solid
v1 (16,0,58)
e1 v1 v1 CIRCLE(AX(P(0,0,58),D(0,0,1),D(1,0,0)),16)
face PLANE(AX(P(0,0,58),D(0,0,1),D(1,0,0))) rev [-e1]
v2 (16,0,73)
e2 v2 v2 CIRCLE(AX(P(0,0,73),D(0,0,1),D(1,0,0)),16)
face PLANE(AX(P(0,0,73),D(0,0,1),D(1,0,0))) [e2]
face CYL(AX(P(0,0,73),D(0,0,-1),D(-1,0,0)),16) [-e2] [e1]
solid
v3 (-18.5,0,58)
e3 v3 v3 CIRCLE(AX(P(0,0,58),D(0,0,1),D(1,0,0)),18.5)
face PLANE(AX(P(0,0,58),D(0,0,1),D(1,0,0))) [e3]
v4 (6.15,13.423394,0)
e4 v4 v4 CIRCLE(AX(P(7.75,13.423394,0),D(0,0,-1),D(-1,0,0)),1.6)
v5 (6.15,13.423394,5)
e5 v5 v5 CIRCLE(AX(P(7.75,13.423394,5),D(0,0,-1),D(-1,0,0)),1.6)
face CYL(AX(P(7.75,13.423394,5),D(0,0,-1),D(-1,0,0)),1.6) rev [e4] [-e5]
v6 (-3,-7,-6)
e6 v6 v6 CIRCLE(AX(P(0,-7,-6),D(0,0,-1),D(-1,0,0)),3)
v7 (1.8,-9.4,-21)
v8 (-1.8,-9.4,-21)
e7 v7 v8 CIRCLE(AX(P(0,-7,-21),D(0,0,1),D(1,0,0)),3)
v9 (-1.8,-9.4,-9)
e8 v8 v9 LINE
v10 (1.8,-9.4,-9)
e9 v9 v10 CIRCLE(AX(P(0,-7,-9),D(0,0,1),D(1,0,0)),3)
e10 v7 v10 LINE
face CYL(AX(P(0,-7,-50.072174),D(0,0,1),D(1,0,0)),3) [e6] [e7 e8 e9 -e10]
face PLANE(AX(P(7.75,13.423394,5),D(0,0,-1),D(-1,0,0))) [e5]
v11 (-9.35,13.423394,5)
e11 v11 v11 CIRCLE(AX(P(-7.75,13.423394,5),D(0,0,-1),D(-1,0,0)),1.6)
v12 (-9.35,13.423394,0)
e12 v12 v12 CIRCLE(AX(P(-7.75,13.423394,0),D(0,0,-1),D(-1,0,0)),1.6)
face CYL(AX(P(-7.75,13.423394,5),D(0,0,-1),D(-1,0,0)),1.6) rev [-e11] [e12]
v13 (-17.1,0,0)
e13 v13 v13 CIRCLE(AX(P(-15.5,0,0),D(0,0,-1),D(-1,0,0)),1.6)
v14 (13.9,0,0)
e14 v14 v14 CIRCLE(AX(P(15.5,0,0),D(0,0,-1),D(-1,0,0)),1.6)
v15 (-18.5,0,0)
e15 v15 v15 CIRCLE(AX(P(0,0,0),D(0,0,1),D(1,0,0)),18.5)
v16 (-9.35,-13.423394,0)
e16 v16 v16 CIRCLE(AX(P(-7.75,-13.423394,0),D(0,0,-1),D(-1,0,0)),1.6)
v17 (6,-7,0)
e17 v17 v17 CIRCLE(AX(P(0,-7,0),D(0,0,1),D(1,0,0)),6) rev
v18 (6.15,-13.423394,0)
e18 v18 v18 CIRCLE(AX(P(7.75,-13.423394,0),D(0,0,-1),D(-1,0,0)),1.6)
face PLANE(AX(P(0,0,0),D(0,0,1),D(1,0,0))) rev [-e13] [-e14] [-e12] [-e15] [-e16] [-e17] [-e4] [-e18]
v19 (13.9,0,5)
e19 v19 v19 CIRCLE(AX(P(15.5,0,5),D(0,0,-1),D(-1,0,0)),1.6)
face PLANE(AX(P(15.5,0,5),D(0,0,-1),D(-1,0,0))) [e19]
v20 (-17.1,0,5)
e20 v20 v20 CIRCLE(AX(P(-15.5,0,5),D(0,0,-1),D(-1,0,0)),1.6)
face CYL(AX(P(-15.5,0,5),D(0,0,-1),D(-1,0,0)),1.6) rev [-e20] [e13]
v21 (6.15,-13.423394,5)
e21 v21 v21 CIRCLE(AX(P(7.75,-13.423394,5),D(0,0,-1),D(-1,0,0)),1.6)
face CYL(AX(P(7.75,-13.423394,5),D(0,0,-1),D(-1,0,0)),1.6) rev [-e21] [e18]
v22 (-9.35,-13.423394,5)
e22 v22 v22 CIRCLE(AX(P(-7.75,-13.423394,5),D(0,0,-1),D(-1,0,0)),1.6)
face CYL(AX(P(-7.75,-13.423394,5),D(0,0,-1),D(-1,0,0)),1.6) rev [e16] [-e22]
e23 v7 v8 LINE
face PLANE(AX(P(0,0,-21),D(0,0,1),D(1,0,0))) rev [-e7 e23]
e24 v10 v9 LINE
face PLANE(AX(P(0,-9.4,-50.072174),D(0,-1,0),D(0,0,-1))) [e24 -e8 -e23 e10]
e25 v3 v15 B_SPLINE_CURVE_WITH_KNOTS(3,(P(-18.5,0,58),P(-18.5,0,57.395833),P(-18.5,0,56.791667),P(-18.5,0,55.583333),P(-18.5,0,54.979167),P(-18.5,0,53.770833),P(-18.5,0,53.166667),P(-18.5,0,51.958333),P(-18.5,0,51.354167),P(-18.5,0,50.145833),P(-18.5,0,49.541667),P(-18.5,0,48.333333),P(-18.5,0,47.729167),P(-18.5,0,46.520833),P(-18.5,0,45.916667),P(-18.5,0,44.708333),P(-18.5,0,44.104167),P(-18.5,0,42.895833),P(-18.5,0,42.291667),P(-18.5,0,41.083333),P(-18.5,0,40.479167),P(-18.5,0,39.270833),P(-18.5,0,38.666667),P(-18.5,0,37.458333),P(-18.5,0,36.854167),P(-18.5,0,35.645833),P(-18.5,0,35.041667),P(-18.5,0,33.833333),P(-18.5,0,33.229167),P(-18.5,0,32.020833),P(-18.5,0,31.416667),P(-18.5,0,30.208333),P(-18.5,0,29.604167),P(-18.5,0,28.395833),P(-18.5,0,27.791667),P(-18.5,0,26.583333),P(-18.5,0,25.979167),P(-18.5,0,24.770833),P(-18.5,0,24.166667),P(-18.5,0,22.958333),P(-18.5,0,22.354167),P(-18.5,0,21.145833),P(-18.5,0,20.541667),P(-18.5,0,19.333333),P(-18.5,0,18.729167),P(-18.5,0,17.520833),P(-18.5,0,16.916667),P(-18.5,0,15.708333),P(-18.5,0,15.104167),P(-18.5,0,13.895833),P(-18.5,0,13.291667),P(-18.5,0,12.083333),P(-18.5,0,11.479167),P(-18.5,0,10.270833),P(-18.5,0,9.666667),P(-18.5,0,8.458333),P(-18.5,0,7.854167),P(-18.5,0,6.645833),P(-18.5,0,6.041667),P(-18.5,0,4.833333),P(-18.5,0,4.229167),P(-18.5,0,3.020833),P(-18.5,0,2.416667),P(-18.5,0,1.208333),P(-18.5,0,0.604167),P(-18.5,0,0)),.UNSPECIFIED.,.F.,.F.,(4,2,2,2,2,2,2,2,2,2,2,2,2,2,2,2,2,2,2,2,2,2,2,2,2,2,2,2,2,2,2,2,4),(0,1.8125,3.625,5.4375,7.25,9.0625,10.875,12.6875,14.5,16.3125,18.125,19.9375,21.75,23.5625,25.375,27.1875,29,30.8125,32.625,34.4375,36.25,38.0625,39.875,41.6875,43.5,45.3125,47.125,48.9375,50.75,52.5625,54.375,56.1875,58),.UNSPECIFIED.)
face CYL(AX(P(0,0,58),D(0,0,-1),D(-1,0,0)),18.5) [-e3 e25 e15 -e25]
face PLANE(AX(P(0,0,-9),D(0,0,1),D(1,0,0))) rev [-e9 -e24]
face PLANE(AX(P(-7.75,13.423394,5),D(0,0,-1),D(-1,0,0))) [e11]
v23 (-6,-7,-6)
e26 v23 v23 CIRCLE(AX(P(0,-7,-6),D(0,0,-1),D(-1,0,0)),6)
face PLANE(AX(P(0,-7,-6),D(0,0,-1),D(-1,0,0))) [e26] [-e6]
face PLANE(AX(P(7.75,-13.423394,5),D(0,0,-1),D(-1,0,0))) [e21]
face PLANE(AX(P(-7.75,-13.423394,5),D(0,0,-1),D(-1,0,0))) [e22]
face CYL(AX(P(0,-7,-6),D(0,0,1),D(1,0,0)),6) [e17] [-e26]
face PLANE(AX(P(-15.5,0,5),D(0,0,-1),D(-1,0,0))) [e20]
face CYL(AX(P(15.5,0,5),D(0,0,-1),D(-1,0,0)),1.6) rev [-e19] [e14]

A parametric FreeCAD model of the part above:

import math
import FreeCAD as App
import Part
import Sketcher
from FreeCAD import Vector

doc = App.newDocument("Part")
params = doc.addObject("Spreadsheet::Sheet", "Params")
for row, (alias, value) in enumerate([
    ("sketch1_diameter", "37 mm"),
    ("pad1_length", "58 mm"),
    ("sketch2_diameter", "12 mm"),
    ("pad2_length", "6 mm"),
    ("sketch3_radius", "3 mm"),
    ("sketch3_width", "3.6 mm"),
    ("pad3_length", "15 mm"),
    ("sketch4_diameter", "6 mm"),
    ("pad4_length", "3 mm"),
    ("sketch5_diameter", "3.2 mm"),
    ("pocket1_length", "5 mm"),
    ("sketch6_diameter", "32 mm"),
    ("pad5_length", "15 mm"),
], start=1):
    params.set(f"A{row}", alias)
    params.set(f"B{row}", "=" + value)
    params.setAlias(f"B{row}", alias)

body = doc.addObject("PartDesign::Body", "Body")

# Sketch on XY plane
sketch1 = body.newObject("Sketcher::SketchObject", "Sketch")
sketch1.AttachmentSupport = (doc.getObject("XY_Plane"), [""])
sketch1.MapMode = "FlatFace"
sketch1.addGeometry(Part.Circle(Vector(0, 0, 0), Vector(0, 0, 1), 18.5), False)
sketch1.addConstraint([
    Sketcher.Constraint("Coincident", 0, 3, -1, 1),
    Sketcher.Constraint("Diameter", 0, 37.0),
])
sketch1.setExpression("Constraints[1]", "Params.sketch1_diameter")
pad1 = body.newObject("PartDesign::Pad", "Pad")
pad1.Profile = sketch1
pad1.setExpression("Length", "Params.pad1_length")

# Sketch on XY plane
sketch2 = body.newObject("Sketcher::SketchObject", "Sketch001")
sketch2.AttachmentSupport = (doc.getObject("XY_Plane"), [""])
sketch2.MapMode = "FlatFace"
sketch2.addGeometry(Part.Circle(Vector(0, -7, 0), Vector(0, 0, 1), 6), False)
sketch2.addConstraint([
    Sketcher.Constraint("PointOnObject", 0, 3, -2),
    Sketcher.Constraint("Diameter", 0, 12.0),
    Sketcher.Constraint("DistanceY", 0, 3, -1, 1, 7.0),
])
sketch2.setExpression("Constraints[1]", "Params.sketch2_diameter")
pad2 = body.newObject("PartDesign::Pad", "Pad001")
pad2.Profile = sketch2
pad2.setExpression("Length", "Params.pad2_length")
pad2.Reversed = True

# Sketch on XY plane
sketch3 = body.newObject("Sketcher::SketchObject", "Sketch002")
sketch3.AttachmentSupport = (doc.getObject("XY_Plane"), [""])
sketch3.MapMode = "FlatFace"
sketch3.AttachmentOffset = App.Placement(Vector(0, 0, -6), App.Rotation())
sketch3.addGeometry([
    Part.LineSegment(Vector(1.8, -9.4, 0), Vector(-1.8, -9.4, 0)),
    Part.ArcOfCircle(Part.Circle(Vector(0, -7, 0), Vector(0, 0, 1), 3), math.radians(-180), math.radians(-126.869898)),
    Part.ArcOfCircle(Part.Circle(Vector(0, -7, 0), Vector(0, 0, 1), 3), math.radians(-53.130102), math.radians(180)),
], False)
sketch3.addConstraint([
    Sketcher.Constraint("Coincident", 0, 2, 1, 2),
    Sketcher.Constraint("Tangent", 1, 1, 2, 2),
    Sketcher.Constraint("Coincident", 2, 1, 0, 1),
    Sketcher.Constraint("Horizontal", 0),
    Sketcher.Constraint("Equal", 1, 2),
    Sketcher.Constraint("PointOnObject", 1, 3, -2),
    Sketcher.Constraint("Horizontal", 2, 3, 1, 1),
    Sketcher.Constraint("Radius", 1, 3.0),
    Sketcher.Constraint("DistanceX", 0, 2, 0, 1, 3.6),
    Sketcher.Constraint("DistanceY", 1, 3, -1, 1, 7.0),
])
sketch3.setExpression("Constraints[7]", "Params.sketch3_radius")
sketch3.setExpression("Constraints[8]", "Params.sketch3_width")
pad3 = body.newObject("PartDesign::Pad", "Pad002")
pad3.Profile = sketch3
pad3.setExpression("Length", "Params.pad3_length")
pad3.Reversed = True

# Sketch on XY plane
sketch4 = body.newObject("Sketcher::SketchObject", "Sketch003")
sketch4.AttachmentSupport = (doc.getObject("XY_Plane"), [""])
sketch4.MapMode = "FlatFace"
sketch4.AttachmentOffset = App.Placement(Vector(0, 0, -6), App.Rotation())
sketch4.addGeometry(Part.Circle(Vector(0, -7, 0), Vector(0, 0, 1), 3), False)
sketch4.addConstraint([
    Sketcher.Constraint("PointOnObject", 0, 3, -2),
    Sketcher.Constraint("Diameter", 0, 6.0),
    Sketcher.Constraint("DistanceY", 0, 3, -1, 1, 7.0),
])
sketch4.setExpression("Constraints[1]", "Params.sketch4_diameter")
pad4 = body.newObject("PartDesign::Pad", "Pad003")
pad4.Profile = sketch4
pad4.setExpression("Length", "Params.pad4_length")
pad4.Reversed = True

# Sketch on XY plane
sketch5 = body.newObject("Sketcher::SketchObject", "Sketch004")
sketch5.AttachmentSupport = (doc.getObject("XY_Plane"), [""])
sketch5.MapMode = "FlatFace"
sketch5.addGeometry([
    Part.Circle(Vector(7.75, -13.423394, 0), Vector(0, 0, 1), 1.6),  # 0
    Part.Circle(Vector(15.5, 0, 0), Vector(0, 0, 1), 1.6),  # 1
    Part.Circle(Vector(7.75, 13.423394, 0), Vector(0, 0, 1), 1.6),  # 2
    Part.Circle(Vector(-7.75, 13.423394, 0), Vector(0, 0, 1), 1.6),  # 3
    Part.Circle(Vector(-15.5, 0, 0), Vector(0, 0, 1), 1.6),  # 4
    Part.Circle(Vector(-7.75, -13.423394, 0), Vector(0, 0, 1), 1.6),  # 5
], False)
sketch5.addConstraint([
    Sketcher.Constraint("Equal", 0, 1),
    Sketcher.Constraint("Equal", 1, 2),
    Sketcher.Constraint("Equal", 2, 3),
    Sketcher.Constraint("Equal", 3, 4),
    Sketcher.Constraint("Equal", 4, 5),
    Sketcher.Constraint("Symmetric", 0, 3, 3, 3, -1, 1),
    Sketcher.Constraint("Symmetric", 1, 3, 4, 3, -1, 1),
    Sketcher.Constraint("Symmetric", 2, 3, 5, 3, -1, 1),
    Sketcher.Constraint("Symmetric", 2, 3, 3, 3, -2),
    Sketcher.Constraint("PointOnObject", 1, 3, -1),
    Sketcher.Constraint("Diameter", 0, 3.2),
    Sketcher.Constraint("DistanceX", 4, 3, 1, 3, 31.0),
    Sketcher.Constraint("DistanceX", 3, 3, 2, 3, 15.5),
    Sketcher.Constraint("DistanceY", 0, 3, -1, 1, 13.423394),
])
sketch5.setExpression("Constraints[10]", "Params.sketch5_diameter")
pocket1 = body.newObject("PartDesign::Pocket", "Pocket")
pocket1.Profile = sketch5
pocket1.setExpression("Length", "Params.pocket1_length")
pocket1.Reversed = True
body2 = doc.addObject("PartDesign::Body", "Body001")

# Sketch on XY plane
sketch6 = body2.newObject("Sketcher::SketchObject", "Sketch005")
sketch6.AttachmentSupport = (doc.getObject("XY_Plane001"), [""])
sketch6.MapMode = "FlatFace"
sketch6.AttachmentOffset = App.Placement(Vector(0, 0, 58), App.Rotation())
sketch6.addGeometry(Part.Circle(Vector(0, 0, 0), Vector(0, 0, 1), 16), False)
sketch6.addConstraint([
    Sketcher.Constraint("Coincident", 0, 3, -1, 1),
    Sketcher.Constraint("Diameter", 0, 32.0),
])
sketch6.setExpression("Constraints[1]", "Params.sketch6_diameter")
pad5 = body2.newObject("PartDesign::Pad", "Pad004")
pad5.Profile = sketch6
pad5.setExpression("Length", "Params.pad5_length")

doc.recompute()
